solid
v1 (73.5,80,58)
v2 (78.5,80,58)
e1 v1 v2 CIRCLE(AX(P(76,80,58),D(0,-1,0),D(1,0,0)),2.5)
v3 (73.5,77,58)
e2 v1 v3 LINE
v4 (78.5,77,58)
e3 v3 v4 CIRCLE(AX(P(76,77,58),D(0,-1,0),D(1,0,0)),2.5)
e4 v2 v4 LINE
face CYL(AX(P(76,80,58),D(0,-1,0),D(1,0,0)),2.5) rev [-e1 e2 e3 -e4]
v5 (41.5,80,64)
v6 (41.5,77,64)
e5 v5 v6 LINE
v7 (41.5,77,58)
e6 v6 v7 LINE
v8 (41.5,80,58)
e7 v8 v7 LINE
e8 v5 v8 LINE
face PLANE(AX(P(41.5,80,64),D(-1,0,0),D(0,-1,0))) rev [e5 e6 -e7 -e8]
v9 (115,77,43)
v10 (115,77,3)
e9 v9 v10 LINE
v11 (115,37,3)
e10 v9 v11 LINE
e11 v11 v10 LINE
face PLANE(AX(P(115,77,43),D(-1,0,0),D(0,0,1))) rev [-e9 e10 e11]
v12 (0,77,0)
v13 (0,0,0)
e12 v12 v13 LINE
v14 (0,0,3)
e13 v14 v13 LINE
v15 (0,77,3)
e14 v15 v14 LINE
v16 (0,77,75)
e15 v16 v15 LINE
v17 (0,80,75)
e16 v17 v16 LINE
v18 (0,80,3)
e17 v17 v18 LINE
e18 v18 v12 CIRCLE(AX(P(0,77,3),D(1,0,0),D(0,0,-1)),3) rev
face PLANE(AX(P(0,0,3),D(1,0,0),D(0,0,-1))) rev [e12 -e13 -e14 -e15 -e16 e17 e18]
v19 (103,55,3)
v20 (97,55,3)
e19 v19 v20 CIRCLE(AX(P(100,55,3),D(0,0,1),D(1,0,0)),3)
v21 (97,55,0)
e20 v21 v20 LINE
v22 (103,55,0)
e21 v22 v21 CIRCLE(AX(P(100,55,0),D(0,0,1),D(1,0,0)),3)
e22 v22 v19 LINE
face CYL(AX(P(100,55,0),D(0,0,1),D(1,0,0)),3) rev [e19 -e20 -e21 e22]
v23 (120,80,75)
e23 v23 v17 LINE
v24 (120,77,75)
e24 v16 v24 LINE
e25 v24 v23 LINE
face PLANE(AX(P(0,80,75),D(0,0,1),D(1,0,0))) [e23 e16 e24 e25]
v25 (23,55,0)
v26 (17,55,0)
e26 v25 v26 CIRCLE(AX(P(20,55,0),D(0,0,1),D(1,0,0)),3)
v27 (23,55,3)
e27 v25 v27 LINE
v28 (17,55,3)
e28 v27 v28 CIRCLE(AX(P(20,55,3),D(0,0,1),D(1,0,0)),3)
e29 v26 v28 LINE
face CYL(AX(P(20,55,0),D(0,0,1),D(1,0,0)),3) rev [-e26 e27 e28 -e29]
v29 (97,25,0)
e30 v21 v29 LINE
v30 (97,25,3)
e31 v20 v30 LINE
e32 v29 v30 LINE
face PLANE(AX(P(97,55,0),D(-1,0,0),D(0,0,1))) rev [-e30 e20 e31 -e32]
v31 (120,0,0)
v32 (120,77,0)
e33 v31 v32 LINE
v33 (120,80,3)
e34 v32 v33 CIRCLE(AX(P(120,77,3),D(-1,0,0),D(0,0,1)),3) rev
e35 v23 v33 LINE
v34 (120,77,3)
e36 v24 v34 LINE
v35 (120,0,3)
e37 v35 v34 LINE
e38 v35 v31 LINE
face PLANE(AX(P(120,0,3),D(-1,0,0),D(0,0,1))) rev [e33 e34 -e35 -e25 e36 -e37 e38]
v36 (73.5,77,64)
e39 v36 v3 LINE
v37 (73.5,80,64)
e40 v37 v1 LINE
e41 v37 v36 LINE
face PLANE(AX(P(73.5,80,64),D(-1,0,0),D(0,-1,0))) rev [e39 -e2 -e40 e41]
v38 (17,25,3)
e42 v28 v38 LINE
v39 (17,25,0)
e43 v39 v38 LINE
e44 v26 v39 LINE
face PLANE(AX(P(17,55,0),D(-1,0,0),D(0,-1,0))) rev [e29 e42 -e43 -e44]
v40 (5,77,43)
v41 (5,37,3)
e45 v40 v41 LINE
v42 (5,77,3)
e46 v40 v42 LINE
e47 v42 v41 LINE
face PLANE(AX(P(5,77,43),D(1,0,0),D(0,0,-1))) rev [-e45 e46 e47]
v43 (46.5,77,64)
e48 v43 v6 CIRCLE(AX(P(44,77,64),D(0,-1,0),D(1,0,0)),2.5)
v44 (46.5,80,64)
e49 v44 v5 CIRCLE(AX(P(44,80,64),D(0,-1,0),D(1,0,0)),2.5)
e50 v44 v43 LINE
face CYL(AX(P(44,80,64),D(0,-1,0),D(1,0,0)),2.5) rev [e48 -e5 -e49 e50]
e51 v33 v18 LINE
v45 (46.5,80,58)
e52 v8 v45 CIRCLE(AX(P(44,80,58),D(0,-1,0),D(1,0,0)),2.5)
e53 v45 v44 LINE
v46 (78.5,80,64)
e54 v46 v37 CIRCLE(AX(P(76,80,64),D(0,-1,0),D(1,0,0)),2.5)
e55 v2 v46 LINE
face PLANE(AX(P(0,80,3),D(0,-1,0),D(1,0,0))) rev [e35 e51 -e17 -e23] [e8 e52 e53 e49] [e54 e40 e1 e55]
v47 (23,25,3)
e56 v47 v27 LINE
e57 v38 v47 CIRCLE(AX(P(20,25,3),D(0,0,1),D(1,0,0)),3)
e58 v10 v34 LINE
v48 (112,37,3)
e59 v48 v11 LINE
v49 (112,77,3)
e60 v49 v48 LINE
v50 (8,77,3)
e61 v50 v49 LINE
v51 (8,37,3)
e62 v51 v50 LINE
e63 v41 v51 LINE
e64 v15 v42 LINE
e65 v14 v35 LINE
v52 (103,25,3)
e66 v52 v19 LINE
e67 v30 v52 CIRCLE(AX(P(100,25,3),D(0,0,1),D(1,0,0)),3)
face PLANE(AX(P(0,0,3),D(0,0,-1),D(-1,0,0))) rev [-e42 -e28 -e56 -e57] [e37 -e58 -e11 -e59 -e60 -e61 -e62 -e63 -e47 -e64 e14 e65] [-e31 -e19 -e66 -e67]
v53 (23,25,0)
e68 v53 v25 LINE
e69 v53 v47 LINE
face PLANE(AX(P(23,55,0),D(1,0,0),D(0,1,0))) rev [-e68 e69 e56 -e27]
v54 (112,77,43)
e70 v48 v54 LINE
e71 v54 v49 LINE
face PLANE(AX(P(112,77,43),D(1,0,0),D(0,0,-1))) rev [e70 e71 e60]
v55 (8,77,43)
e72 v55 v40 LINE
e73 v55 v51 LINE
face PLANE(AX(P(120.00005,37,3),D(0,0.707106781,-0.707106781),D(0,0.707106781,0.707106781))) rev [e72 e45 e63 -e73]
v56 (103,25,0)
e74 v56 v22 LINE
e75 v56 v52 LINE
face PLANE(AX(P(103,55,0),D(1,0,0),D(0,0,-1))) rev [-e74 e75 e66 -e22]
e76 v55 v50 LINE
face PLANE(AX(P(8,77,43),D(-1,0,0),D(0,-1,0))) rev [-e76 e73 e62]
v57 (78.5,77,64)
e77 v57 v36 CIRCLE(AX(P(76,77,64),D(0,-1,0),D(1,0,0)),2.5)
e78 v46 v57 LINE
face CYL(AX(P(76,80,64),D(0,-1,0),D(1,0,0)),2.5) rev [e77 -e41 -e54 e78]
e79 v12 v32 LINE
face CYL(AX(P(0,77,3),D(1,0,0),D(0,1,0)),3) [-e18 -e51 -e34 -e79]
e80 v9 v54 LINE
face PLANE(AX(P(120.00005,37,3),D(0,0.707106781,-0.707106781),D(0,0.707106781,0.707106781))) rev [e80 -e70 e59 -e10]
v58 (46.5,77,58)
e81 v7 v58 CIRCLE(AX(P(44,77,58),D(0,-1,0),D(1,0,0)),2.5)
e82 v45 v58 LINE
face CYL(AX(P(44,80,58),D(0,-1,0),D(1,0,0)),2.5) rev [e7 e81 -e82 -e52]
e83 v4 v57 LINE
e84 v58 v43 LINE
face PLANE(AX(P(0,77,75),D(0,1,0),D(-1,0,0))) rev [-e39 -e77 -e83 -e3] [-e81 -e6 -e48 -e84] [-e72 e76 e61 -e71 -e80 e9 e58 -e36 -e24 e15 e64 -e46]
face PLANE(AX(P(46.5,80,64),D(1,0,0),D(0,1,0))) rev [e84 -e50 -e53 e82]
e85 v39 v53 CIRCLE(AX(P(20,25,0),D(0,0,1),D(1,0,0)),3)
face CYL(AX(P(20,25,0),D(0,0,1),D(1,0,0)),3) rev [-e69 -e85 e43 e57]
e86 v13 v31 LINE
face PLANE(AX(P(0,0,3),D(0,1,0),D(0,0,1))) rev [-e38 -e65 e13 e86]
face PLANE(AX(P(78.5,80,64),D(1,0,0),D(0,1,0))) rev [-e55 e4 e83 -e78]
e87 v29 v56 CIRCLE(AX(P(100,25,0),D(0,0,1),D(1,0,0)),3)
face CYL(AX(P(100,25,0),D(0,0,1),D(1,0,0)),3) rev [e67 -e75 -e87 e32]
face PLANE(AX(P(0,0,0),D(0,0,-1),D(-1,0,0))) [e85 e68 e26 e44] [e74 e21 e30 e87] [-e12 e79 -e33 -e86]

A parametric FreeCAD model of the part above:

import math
import FreeCAD as App
import Part
import Sketcher

V = App.Vector


def edges_at(feature, points):
    """Names of the edges that pass closest to the given points."""
    edges = feature.Shape.Edges
    near = lambda p: min(range(len(edges)), key=lambda i: edges[i].distToShape(Part.Vertex(*p))[0])
    return sorted({f"Edge{near(p) + 1}" for p in points})


def add_polygon(sketch, points):
    """Adds a closed chain of lines whose ends are joined by coincident constraints."""
    first, n = sketch.GeometryCount, len(points)
    for a, b in zip(points, points[1:] + points[:1]):
        sketch.addGeometry(Part.LineSegment(App.Vector(*a, 0), App.Vector(*b, 0)), False)
    for i in range(n):
        sketch.addConstraint(Sketcher.Constraint("Coincident", first + i, 2, first + (i + 1) % n, 1))

doc = App.newDocument("Part")
body = doc.addObject("PartDesign::Body", "Body")

# Sketch on XY plane
sketch1 = body.newObject("Sketcher::SketchObject", "Sketch")
sketch1.AttachmentSupport = (doc.getObject("XY_Plane"), [""])
sketch1.MapMode = "FlatFace"
add_polygon(sketch1, [(0, 80), (0, 0), (120, 0), (120, 80)])  # lines 0-3
sketch1.addConstraint([
    Sketcher.Constraint("Vertical", 0),
    Sketcher.Constraint("Horizontal", 1),
    Sketcher.Constraint("Vertical", 2),
    Sketcher.Constraint("Horizontal", 3),
    Sketcher.Constraint("Coincident", 0, 2, -1, 1),
    Sketcher.Constraint("DistanceX", 1, 1, 1, 2, 120.0),
    Sketcher.Constraint("DistanceY", 0, 2, 0, 1, 80.0),
])
pad1 = body.newObject("PartDesign::Pad", "Pad")
pad1.Profile = sketch1
pad1.Length = 3

# Sketch on XY plane
sketch2 = body.newObject("Sketcher::SketchObject", "Sketch001")
sketch2.AttachmentSupport = (doc.getObject("XY_Plane"), [""])
sketch2.MapMode = "FlatFace"
sketch2.AttachmentOffset = App.Placement(V(0, 0, 3), App.Rotation())
add_polygon(sketch2, [(0, 80), (0, 77), (120, 77), (120, 80)])  # lines 0-3
sketch2.addConstraint([
    Sketcher.Constraint("Vertical", 0),
    Sketcher.Constraint("Horizontal", 1),
    Sketcher.Constraint("Vertical", 2),
    Sketcher.Constraint("Horizontal", 3),
    Sketcher.Constraint("PointOnObject", 0, 2, -2),
    Sketcher.Constraint("DistanceX", 1, 1, 1, 2, 120.0),
    Sketcher.Constraint("DistanceY", 0, 2, 0, 1, 3.0),
    Sketcher.Constraint("DistanceY", -1, 1, 0, 2, 77.0),
])
pad2 = body.newObject("PartDesign::Pad", "Pad001")
pad2.Profile = sketch2
pad2.Length = 72

# Sketch on XY plane
sketch3 = body.newObject("Sketcher::SketchObject", "Sketch002")
sketch3.AttachmentSupport = (doc.getObject("XY_Plane"), [""])
sketch3.MapMode = "FlatFace"
sketch3.AttachmentOffset = App.Placement(V(0, 0, 3), App.Rotation())
sketch3.addGeometry([
    Part.LineSegment(V(17, 55, 0), V(17, 25, 0)),  # 0
    Part.ArcOfCircle(Part.Circle(V(20, 25, 0), V(0, 0, 1), 3), math.radians(180), math.radians(360)),  # 1
    Part.LineSegment(V(23, 25, 0), V(23, 55, 0)),  # 2
    Part.ArcOfCircle(Part.Circle(V(20, 55, 0), V(0, 0, 1), 3), math.radians(0), math.radians(180)),  # 3
    Part.LineSegment(V(97, 55, 0), V(97, 25, 0)),  # 4
    Part.ArcOfCircle(Part.Circle(V(100, 25, 0), V(0, 0, 1), 3), math.radians(180), math.radians(360)),  # 5
    Part.LineSegment(V(103, 25, 0), V(103, 55, 0)),  # 6
    Part.ArcOfCircle(Part.Circle(V(100, 55, 0), V(0, 0, 1), 3), math.radians(0), math.radians(180)),  # 7
], False)
sketch3.addConstraint([
    Sketcher.Constraint("Tangent", 0, 2, 1, 1),
    Sketcher.Constraint("Tangent", 1, 2, 2, 1),
    Sketcher.Constraint("Tangent", 2, 2, 3, 1),
    Sketcher.Constraint("Tangent", 3, 2, 0, 1),
    Sketcher.Constraint("Tangent", 4, 2, 5, 1),
    Sketcher.Constraint("Tangent", 5, 2, 6, 1),
    Sketcher.Constraint("Tangent", 6, 2, 7, 1),
    Sketcher.Constraint("Tangent", 7, 2, 4, 1),
    Sketcher.Constraint("Vertical", 0),
    Sketcher.Constraint("Vertical", 2),
    Sketcher.Constraint("Vertical", 4),
    Sketcher.Constraint("Vertical", 6),
    Sketcher.Constraint("Equal", 3, 5),
    Sketcher.Constraint("Horizontal", 1, 3, 5, 3),
    Sketcher.Constraint("Horizontal", 3, 3, 7, 3),
    Sketcher.Constraint("Radius", 1, 3.0),
    Sketcher.Constraint("DistanceY", 0, 2, 0, 1, 30.0),
    Sketcher.Constraint("DistanceX", -1, 1, 1, 3, 20.0),
    Sketcher.Constraint("DistanceY", -1, 1, 1, 3, 25.0),
    Sketcher.Constraint("DistanceX", -1, 1, 5, 3, 100.0),
])
pocket1 = body.newObject("PartDesign::Pocket", "Pocket")
pocket1.Profile = sketch3
pocket1.Length = 3

# Sketch on XY plane
sketch4 = body.newObject("Sketcher::SketchObject", "Sketch003")
sketch4.AttachmentSupport = (doc.getObject("XY_Plane"), [""])
sketch4.MapMode = "FlatFace"
sketch4.AttachmentOffset = App.Placement(V(0, 0, 3), App.Rotation())
add_polygon(sketch4, [(5, 77), (5, 37), (8, 37), (8, 77)])  # lines 0-3
add_polygon(sketch4, [(112, 77), (112, 37), (115, 37), (115, 77)])  # lines 4-7
sketch4.addConstraint([
    Sketcher.Constraint("Vertical", 0),
    Sketcher.Constraint("Horizontal", 1),
    Sketcher.Constraint("Vertical", 2),
    Sketcher.Constraint("Horizontal", 3),
    Sketcher.Constraint("Vertical", 4),
    Sketcher.Constraint("Horizontal", 5),
    Sketcher.Constraint("Vertical", 6),
    Sketcher.Constraint("Horizontal", 7),
    Sketcher.Constraint("Horizontal", 1, 2, 4, 2),
    Sketcher.Constraint("Horizontal", 3, 2, 6, 2),
    Sketcher.Constraint("Equal", 3, 5),
    Sketcher.Constraint("DistanceX", 1, 1, 1, 2, 3.0),
    Sketcher.Constraint("DistanceY", 0, 2, 0, 1, 40.0),
    Sketcher.Constraint("DistanceX", -1, 1, 0, 2, 5.0),
    Sketcher.Constraint("DistanceY", -1, 1, 0, 2, 37.0),
    Sketcher.Constraint("DistanceX", -1, 1, 4, 2, 112.0),
])
pad3 = body.newObject("PartDesign::Pad", "Pad002")
pad3.Profile = sketch4
pad3.Length = 40

# Sketch on XZ plane
sketch5 = body.newObject("Sketcher::SketchObject", "Sketch004")
sketch5.AttachmentSupport = (doc.getObject("XZ_Plane"), [""])
sketch5.MapMode = "FlatFace"
sketch5.AttachmentOffset = App.Placement(V(0, 0, -77), App.Rotation())
sketch5.addGeometry([
    Part.LineSegment(V(41.5, 64, 0), V(41.5, 58, 0)),  # 0
    Part.ArcOfCircle(Part.Circle(V(44, 58, 0), V(0, 0, 1), 2.5), math.radians(180), math.radians(360)),  # 1
    Part.LineSegment(V(46.5, 58, 0), V(46.5, 64, 0)),  # 2
    Part.ArcOfCircle(Part.Circle(V(44, 64, 0), V(0, 0, 1), 2.5), math.radians(0), math.radians(180)),  # 3
    Part.LineSegment(V(73.5, 64, 0), V(73.5, 58, 0)),  # 4
    Part.ArcOfCircle(Part.Circle(V(76, 58, 0), V(0, 0, 1), 2.5), math.radians(180), math.radians(360)),  # 5
    Part.LineSegment(V(78.5, 58, 0), V(78.5, 64, 0)),  # 6
    Part.ArcOfCircle(Part.Circle(V(76, 64, 0), V(0, 0, 1), 2.5), math.radians(0), math.radians(180)),  # 7
], False)
sketch5.addConstraint([
    Sketcher.Constraint("Tangent", 0, 2, 1, 1),
    Sketcher.Constraint("Tangent", 1, 2, 2, 1),
    Sketcher.Constraint("Tangent", 2, 2, 3, 1),
    Sketcher.Constraint("Tangent", 3, 2, 0, 1),
    Sketcher.Constraint("Tangent", 4, 2, 5, 1),
    Sketcher.Constraint("Tangent", 5, 2, 6, 1),
    Sketcher.Constraint("Tangent", 6, 2, 7, 1),
    Sketcher.Constraint("Tangent", 7, 2, 4, 1),
    Sketcher.Constraint("Vertical", 0),
    Sketcher.Constraint("Vertical", 2),
    Sketcher.Constraint("Vertical", 4),
    Sketcher.Constraint("Vertical", 6),
    Sketcher.Constraint("Equal", 3, 5),
    Sketcher.Constraint("Horizontal", 1, 3, 5, 3),
    Sketcher.Constraint("Horizontal", 3, 3, 7, 3),
    Sketcher.Constraint("Radius", 1, 2.5),
    Sketcher.Constraint("DistanceY", 0, 2, 0, 1, 6.0),
    Sketcher.Constraint("DistanceX", -1, 1, 1, 3, 44.0),
    Sketcher.Constraint("DistanceY", -1, 1, 1, 3, 58.0),
    Sketcher.Constraint("DistanceX", -1, 1, 5, 3, 76.0),
])
pocket2 = body.newObject("PartDesign::Pocket", "Pocket001")
pocket2.Profile = sketch5
pocket2.Length = 3

# Sketch on YZ plane
sketch6 = body.newObject("Sketcher::SketchObject", "Sketch005")
sketch6.AttachmentSupport = (doc.getObject("YZ_Plane"), [""])
sketch6.MapMode = "FlatFace"
sketch6.AttachmentOffset = App.Placement(V(0, 0, 5), App.Rotation())
add_polygon(sketch6, [(77, 43), (37, 3), (37, 43)])  # lines 0-2
sketch6.addConstraint([
    Sketcher.Constraint("Vertical", 1),
    Sketcher.Constraint("Horizontal", 2),
    Sketcher.Constraint("Equal", 2, 1),
    Sketcher.Constraint("DistanceX", 2, 1, 2, 2, 40.0),
    Sketcher.Constraint("DistanceX", -1, 1, 0, 2, 37.0),
    Sketcher.Constraint("DistanceY", -1, 1, 0, 2, 3.0),
])
pocket3 = body.newObject("PartDesign::Pocket", "Pocket002")
pocket3.Profile = sketch6
pocket3.Type = "ThroughAll"
pocket3.Reversed = True
doc.recompute()

fillet = body.newObject("PartDesign::Fillet", "Fillet")
fillet.Base = (pocket3, edges_at(pocket3, [(60, 80, 0)]))
fillet.Radius = 3

doc.recompute()
